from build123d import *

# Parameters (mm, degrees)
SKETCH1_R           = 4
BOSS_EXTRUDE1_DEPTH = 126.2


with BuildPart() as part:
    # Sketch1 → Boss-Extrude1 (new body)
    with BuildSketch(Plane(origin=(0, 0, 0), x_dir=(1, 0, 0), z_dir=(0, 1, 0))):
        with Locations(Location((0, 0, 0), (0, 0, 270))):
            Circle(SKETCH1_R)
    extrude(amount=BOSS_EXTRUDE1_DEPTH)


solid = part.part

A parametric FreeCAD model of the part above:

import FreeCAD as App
import Part
import Sketcher
Q = App.Units.Quantity

doc = App.newDocument("Part")
body = doc.addObject("PartDesign::Body", "Body")

# Sketch on XZ plane
sketch1 = body.newObject("Sketcher::SketchObject", "Sketch")
sketch1.AttachmentSupport = (doc.getObject("XZ_Plane"), [""])
sketch1.MapMode = "FlatFace"
sketch1.addGeometry(Part.Circle(App.Vector(0, 0, 0), App.Vector(0, 0, 1), 4), False)
sketch1.addConstraint(Sketcher.Constraint("Coincident", 0, 3, -1, 1))
sketch1.addConstraint(Sketcher.Constraint("Diameter", 0, Q("8 mm")))
pad1 = body.newObject("PartDesign::Pad", "Pad")
pad1.Profile = sketch1
pad1.Length = 126.2
pad1.Reversed = True

doc.recompute()
